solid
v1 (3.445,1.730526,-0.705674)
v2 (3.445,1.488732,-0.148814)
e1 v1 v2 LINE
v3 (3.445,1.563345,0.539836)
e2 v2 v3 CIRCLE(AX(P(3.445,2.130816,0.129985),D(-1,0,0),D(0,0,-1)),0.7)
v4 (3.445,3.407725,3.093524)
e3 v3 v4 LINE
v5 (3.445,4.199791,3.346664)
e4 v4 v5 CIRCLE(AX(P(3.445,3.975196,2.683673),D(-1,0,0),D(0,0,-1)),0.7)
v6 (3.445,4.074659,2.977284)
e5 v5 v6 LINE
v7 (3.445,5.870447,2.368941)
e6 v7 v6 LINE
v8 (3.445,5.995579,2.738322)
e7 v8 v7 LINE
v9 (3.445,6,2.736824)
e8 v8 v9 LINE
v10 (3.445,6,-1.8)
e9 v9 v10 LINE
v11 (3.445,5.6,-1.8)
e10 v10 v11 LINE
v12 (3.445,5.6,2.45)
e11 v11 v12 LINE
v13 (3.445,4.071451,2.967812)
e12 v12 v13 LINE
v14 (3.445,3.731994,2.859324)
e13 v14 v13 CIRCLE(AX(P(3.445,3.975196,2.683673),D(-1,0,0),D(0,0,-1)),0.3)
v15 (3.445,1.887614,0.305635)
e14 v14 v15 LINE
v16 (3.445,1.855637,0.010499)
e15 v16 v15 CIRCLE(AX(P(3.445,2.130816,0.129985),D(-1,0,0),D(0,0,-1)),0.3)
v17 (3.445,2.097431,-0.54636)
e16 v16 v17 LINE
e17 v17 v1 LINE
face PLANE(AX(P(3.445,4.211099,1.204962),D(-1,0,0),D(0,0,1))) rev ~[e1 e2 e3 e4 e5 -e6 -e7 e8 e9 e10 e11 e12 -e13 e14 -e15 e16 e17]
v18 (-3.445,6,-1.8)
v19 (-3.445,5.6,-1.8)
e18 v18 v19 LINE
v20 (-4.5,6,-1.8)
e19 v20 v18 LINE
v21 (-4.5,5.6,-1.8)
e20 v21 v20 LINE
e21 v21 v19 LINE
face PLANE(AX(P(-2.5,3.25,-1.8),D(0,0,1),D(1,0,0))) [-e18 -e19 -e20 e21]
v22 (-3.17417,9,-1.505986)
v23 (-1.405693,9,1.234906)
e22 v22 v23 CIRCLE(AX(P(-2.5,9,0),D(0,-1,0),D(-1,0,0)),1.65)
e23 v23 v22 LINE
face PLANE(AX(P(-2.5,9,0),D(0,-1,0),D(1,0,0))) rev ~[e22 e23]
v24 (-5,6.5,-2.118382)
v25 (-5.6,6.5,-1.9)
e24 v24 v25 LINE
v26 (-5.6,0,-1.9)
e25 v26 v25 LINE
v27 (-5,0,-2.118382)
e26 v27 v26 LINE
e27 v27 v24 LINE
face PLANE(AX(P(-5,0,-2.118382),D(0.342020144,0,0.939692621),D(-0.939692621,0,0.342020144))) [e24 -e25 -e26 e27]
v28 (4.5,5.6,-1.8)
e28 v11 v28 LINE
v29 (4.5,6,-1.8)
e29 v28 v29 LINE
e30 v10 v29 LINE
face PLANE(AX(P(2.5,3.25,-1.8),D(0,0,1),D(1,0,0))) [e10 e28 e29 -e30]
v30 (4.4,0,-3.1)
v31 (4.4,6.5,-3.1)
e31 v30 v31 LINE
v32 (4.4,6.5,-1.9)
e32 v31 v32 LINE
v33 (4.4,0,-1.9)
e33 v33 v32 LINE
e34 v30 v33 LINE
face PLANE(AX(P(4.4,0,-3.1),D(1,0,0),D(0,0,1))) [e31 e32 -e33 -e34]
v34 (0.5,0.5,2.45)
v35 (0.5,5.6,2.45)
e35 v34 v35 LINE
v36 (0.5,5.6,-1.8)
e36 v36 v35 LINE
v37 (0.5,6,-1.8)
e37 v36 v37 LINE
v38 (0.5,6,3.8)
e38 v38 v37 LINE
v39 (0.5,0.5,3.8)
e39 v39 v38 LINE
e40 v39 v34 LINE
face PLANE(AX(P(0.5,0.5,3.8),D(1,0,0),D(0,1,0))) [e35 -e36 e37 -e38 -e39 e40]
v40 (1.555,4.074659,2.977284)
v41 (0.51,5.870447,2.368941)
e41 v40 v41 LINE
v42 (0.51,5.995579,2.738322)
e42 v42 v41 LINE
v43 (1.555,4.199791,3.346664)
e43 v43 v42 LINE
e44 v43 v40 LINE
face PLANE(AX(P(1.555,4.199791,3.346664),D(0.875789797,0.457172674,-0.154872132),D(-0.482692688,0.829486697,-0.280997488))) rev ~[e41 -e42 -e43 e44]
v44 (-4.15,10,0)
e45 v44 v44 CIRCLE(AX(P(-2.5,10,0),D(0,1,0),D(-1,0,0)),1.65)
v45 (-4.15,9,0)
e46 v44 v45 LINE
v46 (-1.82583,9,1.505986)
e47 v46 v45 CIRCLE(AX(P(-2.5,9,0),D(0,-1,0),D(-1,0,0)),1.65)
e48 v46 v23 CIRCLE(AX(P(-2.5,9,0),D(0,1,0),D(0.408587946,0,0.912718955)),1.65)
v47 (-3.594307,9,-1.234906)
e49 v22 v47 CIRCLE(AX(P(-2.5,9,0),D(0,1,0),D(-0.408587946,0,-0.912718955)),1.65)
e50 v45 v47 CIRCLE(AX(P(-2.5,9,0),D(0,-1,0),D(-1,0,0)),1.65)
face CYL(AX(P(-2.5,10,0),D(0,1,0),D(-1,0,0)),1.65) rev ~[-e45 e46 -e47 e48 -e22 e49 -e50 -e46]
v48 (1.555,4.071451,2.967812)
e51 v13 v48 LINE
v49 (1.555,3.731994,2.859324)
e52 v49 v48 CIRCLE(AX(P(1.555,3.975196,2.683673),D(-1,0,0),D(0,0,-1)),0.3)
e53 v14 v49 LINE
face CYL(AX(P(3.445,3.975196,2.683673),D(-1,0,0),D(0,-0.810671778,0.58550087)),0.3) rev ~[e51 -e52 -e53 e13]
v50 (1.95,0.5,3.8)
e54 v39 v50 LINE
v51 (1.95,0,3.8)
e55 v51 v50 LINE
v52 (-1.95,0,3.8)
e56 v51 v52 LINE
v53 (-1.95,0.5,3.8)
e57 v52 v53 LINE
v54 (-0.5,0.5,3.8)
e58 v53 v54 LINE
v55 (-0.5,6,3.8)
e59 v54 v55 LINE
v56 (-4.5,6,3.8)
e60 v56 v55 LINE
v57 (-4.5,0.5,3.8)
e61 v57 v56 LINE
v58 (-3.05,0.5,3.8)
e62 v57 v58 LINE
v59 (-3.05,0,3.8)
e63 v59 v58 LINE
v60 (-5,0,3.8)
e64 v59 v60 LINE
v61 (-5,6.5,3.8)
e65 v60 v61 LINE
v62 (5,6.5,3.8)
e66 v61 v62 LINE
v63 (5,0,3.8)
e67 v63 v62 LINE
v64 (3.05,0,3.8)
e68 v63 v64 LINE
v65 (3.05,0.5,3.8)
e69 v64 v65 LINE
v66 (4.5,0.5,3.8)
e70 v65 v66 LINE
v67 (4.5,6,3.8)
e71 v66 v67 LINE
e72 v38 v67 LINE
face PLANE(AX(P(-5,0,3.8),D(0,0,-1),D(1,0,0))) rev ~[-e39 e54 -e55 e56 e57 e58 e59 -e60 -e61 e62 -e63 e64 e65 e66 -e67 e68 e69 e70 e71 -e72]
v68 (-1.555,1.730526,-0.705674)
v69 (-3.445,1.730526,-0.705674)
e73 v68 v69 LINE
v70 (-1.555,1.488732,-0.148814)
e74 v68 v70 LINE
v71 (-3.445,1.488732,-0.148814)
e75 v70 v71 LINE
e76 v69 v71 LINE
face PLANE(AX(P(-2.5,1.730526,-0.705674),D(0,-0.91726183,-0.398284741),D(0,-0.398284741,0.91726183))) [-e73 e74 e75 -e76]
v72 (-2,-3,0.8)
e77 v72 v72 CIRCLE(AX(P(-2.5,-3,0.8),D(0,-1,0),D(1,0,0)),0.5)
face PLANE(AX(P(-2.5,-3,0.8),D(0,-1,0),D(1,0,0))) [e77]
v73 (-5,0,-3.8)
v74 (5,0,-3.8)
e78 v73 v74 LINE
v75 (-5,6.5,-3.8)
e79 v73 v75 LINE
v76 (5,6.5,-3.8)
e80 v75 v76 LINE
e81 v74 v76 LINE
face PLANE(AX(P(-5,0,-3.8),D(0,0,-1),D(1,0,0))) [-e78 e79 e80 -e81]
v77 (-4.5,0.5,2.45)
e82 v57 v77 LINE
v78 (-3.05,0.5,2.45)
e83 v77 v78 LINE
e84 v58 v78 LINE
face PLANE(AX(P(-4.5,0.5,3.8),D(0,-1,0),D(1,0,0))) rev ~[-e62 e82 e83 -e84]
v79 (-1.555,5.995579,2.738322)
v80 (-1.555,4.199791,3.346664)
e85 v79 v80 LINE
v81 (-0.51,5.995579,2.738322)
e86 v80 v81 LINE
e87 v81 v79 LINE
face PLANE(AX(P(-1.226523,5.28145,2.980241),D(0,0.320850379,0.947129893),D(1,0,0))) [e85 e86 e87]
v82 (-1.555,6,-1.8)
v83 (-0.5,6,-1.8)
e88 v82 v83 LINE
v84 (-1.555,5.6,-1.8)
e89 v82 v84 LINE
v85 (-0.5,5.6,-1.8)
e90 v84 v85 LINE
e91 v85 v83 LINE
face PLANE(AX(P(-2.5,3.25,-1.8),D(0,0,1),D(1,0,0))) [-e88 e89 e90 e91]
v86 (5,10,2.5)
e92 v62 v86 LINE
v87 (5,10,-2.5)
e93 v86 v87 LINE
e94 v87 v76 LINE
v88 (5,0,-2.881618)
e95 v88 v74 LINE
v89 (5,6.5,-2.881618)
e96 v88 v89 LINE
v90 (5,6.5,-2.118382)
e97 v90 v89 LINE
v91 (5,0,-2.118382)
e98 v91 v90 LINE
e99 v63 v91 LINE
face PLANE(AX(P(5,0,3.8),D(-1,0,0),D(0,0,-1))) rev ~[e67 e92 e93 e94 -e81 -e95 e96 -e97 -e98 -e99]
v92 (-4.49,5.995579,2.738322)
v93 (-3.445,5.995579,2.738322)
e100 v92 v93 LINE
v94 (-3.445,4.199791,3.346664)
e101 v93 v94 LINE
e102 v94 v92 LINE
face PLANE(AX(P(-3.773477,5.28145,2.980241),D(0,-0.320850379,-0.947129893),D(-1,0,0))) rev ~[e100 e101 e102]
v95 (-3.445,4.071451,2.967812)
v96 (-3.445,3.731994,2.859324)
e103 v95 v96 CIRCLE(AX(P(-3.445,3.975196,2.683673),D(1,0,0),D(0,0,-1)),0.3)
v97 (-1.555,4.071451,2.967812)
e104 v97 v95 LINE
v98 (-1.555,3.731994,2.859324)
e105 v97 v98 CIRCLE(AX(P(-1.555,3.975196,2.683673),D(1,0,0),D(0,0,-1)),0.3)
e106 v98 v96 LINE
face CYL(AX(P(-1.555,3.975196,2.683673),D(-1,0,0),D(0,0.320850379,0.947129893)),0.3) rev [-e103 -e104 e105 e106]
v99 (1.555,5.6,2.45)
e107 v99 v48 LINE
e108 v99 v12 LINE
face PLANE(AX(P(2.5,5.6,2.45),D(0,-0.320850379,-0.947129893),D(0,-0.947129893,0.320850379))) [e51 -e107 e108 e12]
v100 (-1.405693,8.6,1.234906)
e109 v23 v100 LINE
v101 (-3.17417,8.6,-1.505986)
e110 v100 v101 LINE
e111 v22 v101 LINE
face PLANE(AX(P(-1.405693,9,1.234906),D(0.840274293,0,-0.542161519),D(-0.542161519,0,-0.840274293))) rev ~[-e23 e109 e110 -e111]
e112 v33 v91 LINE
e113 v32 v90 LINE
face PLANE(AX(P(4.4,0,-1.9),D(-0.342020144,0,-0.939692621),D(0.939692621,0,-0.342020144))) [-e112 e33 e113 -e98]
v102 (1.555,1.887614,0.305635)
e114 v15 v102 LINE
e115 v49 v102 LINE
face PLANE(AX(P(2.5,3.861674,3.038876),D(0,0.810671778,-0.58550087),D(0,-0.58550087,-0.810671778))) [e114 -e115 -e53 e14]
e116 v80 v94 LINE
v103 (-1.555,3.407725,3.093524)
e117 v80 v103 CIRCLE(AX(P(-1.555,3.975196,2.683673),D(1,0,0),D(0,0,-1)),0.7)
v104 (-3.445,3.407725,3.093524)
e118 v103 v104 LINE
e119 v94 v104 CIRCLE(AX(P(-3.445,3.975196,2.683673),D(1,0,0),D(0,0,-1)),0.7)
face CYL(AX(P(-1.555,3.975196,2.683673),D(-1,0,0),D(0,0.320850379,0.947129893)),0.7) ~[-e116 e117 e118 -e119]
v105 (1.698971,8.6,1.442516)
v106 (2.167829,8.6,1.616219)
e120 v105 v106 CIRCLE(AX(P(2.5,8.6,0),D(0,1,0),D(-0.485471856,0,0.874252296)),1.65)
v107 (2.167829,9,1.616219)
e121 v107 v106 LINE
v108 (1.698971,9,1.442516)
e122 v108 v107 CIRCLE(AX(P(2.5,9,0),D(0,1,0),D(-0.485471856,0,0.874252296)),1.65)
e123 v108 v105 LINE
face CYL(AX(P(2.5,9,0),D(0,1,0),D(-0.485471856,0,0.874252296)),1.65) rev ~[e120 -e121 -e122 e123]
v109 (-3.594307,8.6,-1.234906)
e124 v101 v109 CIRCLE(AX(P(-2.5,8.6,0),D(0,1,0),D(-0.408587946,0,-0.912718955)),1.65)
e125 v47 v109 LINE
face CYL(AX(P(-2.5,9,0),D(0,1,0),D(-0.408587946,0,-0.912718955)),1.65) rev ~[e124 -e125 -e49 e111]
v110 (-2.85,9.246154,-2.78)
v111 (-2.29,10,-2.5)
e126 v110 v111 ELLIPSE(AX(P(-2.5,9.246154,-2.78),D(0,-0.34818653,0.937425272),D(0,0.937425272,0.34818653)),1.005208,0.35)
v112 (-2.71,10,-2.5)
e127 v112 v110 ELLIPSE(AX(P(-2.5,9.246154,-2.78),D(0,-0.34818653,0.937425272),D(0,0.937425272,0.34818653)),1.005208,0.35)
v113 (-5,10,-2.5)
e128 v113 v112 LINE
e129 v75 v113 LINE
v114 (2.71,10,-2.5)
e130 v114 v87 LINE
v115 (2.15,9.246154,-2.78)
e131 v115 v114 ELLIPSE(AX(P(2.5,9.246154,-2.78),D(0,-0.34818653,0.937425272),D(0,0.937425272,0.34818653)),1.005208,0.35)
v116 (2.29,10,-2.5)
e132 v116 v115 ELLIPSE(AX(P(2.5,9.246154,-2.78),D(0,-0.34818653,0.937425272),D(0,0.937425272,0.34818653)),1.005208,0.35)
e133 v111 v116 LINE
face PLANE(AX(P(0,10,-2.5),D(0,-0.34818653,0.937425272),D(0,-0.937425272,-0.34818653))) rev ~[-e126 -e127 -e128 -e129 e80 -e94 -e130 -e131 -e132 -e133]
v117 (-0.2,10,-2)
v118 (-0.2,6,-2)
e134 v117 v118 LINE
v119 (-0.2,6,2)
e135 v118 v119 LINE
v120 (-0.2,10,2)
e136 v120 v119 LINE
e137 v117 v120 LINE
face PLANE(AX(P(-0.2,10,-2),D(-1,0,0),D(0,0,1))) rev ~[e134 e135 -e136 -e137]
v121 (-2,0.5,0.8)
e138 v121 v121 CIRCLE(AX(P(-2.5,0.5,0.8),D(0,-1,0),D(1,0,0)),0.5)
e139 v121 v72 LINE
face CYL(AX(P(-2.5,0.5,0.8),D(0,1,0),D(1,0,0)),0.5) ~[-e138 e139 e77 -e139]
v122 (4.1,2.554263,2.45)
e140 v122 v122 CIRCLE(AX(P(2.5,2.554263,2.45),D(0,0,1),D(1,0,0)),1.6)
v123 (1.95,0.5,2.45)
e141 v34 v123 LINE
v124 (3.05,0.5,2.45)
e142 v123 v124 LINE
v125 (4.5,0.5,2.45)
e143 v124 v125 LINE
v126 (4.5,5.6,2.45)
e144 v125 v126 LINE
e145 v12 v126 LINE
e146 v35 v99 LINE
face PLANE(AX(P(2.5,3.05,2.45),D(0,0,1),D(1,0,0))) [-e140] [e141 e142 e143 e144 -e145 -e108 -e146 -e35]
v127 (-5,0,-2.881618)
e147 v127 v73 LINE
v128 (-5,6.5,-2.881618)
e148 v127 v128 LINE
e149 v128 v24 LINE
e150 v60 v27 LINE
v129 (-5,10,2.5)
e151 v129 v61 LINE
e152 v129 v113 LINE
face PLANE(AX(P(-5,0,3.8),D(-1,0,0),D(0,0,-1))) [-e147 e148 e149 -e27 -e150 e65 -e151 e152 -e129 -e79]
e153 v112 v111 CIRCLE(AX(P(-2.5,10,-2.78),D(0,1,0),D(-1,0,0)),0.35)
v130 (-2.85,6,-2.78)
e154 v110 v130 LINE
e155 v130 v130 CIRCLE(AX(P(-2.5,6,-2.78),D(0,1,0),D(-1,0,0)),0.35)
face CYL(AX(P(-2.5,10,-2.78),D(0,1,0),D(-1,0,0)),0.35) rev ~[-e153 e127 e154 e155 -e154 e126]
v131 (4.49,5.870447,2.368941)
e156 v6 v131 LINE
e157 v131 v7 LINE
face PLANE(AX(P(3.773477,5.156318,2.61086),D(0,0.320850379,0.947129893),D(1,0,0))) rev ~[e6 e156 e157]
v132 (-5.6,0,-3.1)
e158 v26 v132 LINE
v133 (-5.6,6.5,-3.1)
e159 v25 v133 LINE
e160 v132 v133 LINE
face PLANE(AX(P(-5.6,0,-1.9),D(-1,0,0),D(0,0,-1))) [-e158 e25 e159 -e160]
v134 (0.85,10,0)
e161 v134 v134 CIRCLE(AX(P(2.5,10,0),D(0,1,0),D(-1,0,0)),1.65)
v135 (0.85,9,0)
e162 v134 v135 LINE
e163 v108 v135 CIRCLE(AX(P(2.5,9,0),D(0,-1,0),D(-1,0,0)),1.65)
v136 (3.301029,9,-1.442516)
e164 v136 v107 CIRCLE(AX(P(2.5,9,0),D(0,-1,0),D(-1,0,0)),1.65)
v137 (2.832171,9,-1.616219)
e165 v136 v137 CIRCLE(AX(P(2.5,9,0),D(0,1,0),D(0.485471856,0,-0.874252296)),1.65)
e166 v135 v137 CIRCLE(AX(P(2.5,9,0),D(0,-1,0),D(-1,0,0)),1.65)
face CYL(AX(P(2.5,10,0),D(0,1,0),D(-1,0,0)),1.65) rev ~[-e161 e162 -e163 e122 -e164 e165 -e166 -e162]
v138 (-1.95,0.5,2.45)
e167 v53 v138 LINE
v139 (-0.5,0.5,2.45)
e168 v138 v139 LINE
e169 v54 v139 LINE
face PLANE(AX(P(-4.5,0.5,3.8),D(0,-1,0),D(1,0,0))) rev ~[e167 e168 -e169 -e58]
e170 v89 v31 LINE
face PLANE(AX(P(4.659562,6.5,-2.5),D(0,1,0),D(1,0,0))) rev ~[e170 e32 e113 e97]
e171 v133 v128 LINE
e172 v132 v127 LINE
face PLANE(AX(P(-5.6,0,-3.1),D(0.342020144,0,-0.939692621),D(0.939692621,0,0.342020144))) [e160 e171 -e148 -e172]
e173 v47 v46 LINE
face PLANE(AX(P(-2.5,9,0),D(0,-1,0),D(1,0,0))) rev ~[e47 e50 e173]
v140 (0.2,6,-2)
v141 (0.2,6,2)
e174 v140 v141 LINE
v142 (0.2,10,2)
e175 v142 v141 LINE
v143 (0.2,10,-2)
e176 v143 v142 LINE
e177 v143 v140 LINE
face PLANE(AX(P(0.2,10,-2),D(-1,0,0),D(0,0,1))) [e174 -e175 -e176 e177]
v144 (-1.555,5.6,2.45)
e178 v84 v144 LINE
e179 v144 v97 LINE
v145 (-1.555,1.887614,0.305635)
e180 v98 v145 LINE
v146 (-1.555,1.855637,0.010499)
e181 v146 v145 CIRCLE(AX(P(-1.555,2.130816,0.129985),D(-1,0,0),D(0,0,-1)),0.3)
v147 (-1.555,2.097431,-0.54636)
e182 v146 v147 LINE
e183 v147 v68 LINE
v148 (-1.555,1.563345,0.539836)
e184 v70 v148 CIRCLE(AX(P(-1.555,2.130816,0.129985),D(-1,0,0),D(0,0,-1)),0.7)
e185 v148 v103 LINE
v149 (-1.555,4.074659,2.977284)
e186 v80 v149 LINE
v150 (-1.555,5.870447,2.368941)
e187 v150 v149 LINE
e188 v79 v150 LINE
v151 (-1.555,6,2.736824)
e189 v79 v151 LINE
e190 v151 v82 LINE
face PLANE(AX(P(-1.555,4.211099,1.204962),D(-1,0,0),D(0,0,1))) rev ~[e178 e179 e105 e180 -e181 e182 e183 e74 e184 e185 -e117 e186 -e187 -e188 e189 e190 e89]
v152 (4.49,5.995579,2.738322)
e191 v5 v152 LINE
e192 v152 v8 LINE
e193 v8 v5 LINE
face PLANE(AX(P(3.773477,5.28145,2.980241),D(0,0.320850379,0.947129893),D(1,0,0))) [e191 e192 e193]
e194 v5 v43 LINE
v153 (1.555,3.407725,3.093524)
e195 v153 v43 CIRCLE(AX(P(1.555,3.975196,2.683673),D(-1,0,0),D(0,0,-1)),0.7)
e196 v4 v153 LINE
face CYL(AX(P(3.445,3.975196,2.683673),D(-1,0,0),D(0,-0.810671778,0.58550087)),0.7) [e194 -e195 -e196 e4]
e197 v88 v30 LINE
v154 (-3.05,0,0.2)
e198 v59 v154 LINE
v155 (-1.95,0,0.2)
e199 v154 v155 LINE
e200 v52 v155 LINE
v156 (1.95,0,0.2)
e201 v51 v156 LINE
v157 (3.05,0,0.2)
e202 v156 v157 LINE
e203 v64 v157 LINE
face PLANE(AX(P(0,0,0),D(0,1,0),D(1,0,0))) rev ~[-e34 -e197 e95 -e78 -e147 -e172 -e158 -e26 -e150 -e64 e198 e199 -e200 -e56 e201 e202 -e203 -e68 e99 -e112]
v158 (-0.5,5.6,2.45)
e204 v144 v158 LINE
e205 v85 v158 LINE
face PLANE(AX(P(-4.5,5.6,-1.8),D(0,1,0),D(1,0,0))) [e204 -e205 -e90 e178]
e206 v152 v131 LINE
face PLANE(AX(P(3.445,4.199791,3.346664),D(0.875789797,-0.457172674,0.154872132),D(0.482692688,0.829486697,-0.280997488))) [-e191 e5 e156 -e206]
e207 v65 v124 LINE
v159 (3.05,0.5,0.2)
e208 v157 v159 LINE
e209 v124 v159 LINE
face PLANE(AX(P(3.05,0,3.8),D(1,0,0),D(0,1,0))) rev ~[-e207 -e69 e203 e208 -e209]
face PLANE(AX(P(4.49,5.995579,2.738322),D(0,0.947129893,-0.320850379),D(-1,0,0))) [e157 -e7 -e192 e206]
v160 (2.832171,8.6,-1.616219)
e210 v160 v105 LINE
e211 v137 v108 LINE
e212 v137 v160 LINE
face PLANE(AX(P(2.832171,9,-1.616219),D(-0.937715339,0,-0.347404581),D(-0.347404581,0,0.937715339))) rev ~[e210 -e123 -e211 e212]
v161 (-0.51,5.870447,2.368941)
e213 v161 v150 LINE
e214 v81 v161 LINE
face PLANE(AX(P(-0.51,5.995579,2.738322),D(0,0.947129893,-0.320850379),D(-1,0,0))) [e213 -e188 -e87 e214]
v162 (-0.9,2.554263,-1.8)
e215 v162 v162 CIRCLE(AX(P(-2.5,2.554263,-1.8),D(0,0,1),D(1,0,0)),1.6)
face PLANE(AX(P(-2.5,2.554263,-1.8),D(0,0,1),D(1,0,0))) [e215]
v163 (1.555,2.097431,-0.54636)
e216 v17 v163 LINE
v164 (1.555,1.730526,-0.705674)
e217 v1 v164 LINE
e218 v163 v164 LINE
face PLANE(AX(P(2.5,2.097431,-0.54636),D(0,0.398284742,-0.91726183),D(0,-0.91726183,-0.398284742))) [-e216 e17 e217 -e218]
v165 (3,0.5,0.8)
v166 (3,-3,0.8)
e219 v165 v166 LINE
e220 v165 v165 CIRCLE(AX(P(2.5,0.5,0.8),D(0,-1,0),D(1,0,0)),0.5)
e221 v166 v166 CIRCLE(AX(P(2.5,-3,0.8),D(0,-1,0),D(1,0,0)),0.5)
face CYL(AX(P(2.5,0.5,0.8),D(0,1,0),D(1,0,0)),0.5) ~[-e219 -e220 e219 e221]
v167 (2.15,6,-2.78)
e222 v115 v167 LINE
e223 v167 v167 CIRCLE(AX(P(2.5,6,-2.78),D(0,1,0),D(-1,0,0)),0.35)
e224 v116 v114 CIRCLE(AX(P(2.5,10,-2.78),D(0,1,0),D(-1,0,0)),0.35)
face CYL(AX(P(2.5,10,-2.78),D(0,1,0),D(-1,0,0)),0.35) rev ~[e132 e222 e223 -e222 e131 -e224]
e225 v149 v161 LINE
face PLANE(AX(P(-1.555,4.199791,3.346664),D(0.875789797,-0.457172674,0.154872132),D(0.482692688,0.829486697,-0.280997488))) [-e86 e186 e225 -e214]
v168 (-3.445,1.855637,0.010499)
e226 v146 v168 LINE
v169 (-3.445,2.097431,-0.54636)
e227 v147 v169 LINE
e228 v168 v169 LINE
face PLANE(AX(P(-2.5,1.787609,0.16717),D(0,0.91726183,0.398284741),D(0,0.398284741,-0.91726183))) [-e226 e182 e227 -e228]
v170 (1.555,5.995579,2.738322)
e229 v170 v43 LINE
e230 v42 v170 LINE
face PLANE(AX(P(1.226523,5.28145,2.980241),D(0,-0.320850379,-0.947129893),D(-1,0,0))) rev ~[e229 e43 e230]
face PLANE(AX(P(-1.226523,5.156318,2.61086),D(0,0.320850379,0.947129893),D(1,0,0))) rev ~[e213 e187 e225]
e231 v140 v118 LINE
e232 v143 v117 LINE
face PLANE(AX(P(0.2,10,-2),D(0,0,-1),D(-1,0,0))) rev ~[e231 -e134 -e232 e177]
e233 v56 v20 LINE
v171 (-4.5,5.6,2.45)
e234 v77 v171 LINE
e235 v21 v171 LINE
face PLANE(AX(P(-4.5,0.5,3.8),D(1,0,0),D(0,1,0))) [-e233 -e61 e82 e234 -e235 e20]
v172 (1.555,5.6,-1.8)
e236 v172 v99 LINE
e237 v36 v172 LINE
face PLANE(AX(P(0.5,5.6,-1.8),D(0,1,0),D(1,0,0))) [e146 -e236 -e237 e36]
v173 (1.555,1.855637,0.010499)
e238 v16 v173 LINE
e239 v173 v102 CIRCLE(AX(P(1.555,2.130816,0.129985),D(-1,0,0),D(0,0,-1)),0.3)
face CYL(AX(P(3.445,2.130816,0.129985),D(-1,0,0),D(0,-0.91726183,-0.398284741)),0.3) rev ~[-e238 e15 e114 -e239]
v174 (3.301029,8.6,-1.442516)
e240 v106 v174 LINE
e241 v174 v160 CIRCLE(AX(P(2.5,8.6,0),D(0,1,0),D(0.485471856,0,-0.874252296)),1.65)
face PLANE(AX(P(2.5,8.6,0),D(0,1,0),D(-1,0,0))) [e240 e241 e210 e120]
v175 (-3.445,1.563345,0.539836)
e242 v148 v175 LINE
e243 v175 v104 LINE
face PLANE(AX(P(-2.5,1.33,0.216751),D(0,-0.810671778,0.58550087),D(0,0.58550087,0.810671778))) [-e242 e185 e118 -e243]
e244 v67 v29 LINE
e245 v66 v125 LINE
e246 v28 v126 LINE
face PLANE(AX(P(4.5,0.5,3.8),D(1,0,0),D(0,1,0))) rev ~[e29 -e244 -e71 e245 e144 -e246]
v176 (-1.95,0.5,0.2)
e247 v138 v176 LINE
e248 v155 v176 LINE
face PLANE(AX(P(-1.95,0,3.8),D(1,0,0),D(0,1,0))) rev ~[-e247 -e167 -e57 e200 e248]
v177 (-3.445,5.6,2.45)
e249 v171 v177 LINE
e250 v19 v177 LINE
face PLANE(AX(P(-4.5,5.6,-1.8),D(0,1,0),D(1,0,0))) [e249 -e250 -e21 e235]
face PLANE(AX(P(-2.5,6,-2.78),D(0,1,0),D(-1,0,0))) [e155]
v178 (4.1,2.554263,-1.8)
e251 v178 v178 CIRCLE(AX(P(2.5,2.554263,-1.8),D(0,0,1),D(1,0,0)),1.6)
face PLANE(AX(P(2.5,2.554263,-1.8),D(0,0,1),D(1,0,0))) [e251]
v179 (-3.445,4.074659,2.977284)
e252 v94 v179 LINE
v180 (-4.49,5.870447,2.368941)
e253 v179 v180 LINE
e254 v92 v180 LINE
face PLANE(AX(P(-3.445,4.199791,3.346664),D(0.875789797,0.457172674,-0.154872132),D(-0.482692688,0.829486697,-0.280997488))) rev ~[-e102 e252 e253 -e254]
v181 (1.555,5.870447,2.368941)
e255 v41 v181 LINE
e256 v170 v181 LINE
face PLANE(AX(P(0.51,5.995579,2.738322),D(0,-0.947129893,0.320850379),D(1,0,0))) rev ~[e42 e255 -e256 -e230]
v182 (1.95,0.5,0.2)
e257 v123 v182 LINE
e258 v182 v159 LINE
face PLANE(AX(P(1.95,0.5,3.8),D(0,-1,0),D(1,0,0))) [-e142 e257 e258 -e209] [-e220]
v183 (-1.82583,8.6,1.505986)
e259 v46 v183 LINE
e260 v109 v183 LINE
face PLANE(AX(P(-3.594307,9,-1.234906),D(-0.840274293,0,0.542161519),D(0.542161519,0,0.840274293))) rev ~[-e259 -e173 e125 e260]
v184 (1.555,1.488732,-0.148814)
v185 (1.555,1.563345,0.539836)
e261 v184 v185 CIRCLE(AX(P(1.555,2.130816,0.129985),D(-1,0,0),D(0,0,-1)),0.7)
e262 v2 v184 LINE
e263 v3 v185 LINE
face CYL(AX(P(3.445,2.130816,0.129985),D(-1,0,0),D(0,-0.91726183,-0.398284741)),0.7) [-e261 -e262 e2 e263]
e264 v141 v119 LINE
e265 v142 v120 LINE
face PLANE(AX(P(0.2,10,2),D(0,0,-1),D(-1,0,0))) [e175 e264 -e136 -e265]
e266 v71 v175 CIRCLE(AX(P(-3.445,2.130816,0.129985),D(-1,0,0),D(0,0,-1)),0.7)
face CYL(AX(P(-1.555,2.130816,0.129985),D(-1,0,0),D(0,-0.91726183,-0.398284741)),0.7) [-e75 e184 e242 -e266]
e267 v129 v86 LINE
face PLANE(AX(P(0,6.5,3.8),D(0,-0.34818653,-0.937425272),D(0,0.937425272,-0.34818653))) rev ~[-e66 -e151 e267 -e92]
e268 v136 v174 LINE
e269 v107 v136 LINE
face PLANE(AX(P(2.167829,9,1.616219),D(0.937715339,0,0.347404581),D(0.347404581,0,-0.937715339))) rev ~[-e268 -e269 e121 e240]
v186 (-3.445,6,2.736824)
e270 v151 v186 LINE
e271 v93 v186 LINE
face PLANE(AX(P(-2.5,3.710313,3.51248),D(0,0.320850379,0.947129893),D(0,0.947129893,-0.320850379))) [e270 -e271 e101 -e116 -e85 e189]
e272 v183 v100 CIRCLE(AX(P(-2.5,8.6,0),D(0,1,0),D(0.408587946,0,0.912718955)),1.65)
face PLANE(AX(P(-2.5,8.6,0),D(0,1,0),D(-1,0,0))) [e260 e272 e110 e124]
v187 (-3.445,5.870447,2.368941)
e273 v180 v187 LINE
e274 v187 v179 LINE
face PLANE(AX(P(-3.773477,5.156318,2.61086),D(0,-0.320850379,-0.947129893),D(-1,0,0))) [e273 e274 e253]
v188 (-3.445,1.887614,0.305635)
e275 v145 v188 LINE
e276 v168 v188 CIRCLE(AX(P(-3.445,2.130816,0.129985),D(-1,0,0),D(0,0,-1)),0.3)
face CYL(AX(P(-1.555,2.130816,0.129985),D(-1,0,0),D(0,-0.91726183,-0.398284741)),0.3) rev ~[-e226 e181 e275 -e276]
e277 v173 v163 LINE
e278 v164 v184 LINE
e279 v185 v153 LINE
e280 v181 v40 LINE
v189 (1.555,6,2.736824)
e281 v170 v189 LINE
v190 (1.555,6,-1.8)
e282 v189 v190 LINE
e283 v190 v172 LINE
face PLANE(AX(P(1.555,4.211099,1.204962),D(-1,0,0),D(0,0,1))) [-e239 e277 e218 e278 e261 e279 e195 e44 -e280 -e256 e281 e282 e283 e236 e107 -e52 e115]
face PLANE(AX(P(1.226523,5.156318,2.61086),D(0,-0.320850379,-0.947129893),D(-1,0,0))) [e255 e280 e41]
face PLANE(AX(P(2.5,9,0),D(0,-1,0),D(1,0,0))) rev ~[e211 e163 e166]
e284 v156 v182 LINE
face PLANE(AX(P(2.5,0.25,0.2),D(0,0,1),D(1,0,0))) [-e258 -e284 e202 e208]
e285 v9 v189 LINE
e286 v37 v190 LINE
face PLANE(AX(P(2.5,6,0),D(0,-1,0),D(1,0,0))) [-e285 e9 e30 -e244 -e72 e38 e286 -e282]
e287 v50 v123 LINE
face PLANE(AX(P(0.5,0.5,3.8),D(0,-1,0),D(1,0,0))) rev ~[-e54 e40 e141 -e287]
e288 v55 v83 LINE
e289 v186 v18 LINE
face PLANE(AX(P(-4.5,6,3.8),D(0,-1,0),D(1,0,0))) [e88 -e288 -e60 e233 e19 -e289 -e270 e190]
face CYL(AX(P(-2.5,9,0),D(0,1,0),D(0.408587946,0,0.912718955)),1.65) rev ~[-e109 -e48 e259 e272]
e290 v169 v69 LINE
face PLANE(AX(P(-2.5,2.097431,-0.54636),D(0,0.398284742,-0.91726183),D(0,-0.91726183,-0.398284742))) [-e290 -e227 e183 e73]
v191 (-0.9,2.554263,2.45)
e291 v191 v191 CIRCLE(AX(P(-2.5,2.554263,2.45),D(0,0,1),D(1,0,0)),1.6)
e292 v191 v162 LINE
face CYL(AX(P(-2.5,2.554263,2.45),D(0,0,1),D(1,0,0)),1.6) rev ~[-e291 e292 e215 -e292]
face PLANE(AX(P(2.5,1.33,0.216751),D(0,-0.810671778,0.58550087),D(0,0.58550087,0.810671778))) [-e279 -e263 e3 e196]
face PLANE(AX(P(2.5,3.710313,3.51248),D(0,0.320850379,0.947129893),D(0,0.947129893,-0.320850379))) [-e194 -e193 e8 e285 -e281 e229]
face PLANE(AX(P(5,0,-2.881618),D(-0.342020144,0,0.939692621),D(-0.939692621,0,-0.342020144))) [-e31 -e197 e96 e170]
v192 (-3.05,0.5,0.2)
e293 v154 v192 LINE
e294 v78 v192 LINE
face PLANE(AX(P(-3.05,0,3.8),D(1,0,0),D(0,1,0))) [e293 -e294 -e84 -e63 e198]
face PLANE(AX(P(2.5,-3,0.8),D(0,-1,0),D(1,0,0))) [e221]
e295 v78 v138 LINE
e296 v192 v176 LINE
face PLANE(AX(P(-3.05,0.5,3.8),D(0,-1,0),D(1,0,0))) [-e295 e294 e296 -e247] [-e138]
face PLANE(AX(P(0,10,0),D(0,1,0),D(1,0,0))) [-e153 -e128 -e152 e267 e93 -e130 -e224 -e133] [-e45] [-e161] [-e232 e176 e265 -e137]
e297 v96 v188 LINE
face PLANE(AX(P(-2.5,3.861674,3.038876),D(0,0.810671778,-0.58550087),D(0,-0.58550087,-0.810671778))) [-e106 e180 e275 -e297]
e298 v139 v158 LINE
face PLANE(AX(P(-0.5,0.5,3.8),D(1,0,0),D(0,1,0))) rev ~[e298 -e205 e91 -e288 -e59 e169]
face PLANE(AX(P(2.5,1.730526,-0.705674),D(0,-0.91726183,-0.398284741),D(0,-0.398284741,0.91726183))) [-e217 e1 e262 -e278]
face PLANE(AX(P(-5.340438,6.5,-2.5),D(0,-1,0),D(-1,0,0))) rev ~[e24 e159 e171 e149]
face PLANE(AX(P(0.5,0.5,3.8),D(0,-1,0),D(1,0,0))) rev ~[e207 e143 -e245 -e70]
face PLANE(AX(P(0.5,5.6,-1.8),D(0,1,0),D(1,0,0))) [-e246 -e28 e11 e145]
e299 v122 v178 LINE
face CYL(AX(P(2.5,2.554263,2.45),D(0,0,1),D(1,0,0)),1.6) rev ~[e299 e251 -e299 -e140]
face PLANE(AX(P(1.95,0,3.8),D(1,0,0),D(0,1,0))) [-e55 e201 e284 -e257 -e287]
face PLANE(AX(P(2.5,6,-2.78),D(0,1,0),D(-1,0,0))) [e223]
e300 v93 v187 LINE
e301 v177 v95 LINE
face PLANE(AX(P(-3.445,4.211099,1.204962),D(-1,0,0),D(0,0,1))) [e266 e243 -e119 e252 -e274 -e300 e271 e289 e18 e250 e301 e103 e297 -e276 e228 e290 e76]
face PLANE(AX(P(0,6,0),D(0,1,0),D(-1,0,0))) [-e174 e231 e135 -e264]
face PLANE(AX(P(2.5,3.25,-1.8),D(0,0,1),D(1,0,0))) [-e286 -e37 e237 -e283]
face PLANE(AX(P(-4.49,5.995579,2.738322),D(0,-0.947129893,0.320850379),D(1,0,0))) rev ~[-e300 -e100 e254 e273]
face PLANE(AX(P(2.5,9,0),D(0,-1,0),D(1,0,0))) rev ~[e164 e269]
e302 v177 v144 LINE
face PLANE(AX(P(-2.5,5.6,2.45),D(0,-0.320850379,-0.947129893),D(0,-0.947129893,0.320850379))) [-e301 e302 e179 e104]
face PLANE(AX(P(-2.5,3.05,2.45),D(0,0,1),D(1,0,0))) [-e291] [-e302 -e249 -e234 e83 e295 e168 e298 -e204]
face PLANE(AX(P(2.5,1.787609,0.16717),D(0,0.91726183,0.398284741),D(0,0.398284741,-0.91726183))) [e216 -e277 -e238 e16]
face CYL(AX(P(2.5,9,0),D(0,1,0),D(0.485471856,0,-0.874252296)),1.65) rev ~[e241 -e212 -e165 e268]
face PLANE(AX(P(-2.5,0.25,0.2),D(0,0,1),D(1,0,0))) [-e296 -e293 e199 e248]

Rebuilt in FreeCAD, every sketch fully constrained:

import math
import FreeCAD as App
import Part
import Sketcher
Q = App.Units.Quantity


def edges_at(feature, points):
    """Names of the edges that pass closest to the given points."""
    edges = feature.Shape.Edges
    near = lambda p: min(range(len(edges)), key=lambda i: edges[i].distToShape(Part.Vertex(*p))[0])
    return sorted({f"Edge{near(p) + 1}" for p in points})


def add_polygon(sketch, points):
    """Adds a closed chain of lines whose ends are joined by coincident constraints."""
    first, n = sketch.GeometryCount, len(points)
    for a, b in zip(points, points[1:] + points[:1]):
        sketch.addGeometry(Part.LineSegment(App.Vector(*a, 0), App.Vector(*b, 0)), False)
    for i in range(n):
        sketch.addConstraint(Sketcher.Constraint("Coincident", first + i, 2, first + (i + 1) % n, 1))

doc = App.newDocument("Part")
body = doc.addObject("PartDesign::Body", "Body")

sketch1 = body.newObject("Sketcher::SketchObject", "Sketch")
sketch1.AttachmentSupport = (doc.getObject("XZ_Plane"), [""])
sketch1.MapMode = "FlatFace"
add_polygon(sketch1, [(-5, -4), (-5, 4), (5, 4), (5, -4)])
sketch1.addConstraint(Sketcher.Constraint("Vertical", 0))
sketch1.addConstraint(Sketcher.Constraint("Horizontal", 1))
sketch1.addConstraint(Sketcher.Constraint("Vertical", 2))
sketch1.addConstraint(Sketcher.Constraint("Horizontal", 3))
sketch1.addConstraint(Sketcher.Constraint("Symmetric", 0, 2, 2, 2, -1, 1))
sketch1.addConstraint(Sketcher.Constraint("DistanceX", 1, 1, 1, 2, 10.0))
sketch1.addConstraint(Sketcher.Constraint("DistanceY", 0, 1, 0, 2, 7.6))
pad1 = body.newObject("PartDesign::Pad", "Pad")
pad1.Profile = sketch1
pad1.Length = 10
pad1.Reversed = True

sketch2 = body.newObject("Sketcher::SketchObject", "Sketch001")
sketch2.AttachmentSupport = (doc.getObject("YZ_Plane"), [""])
sketch2.MapMode = "FlatFace"
add_polygon(sketch2, [(12.6, 6.4), (-2.6, 6.4), (-2.6, -6.4), (12.6, -6.4)])
add_polygon(sketch2, [(10, 2.5), (10, -2.5), (6.5, -3.8), (0, -3.8), (0, 3.8), (6.5, 3.8)])
sketch2.addConstraint(Sketcher.Constraint("Horizontal", 0))
sketch2.addConstraint(Sketcher.Constraint("Vertical", 1))
sketch2.addConstraint(Sketcher.Constraint("Horizontal", 2))
sketch2.addConstraint(Sketcher.Constraint("Vertical", 3))
sketch2.addConstraint(Sketcher.Constraint("Vertical", 4))
sketch2.addConstraint(Sketcher.Constraint("Horizontal", 6))
sketch2.addConstraint(Sketcher.Constraint("Vertical", 7))
sketch2.addConstraint(Sketcher.Constraint("Horizontal", 8))
sketch2.addConstraint(Sketcher.Constraint("Symmetric", 6, 2, 7, 2, -1, 1))
sketch2.addConstraint(Sketcher.Constraint("Vertical", 5, 2, 8, 2))
sketch2.addConstraint(Sketcher.Constraint("Equal", 5, 9))
sketch2.addConstraint(Sketcher.Constraint("DistanceY", 4, 2, 4, 1, 5.0))
sketch2.addConstraint(Sketcher.Constraint("DistanceX", 6, 2, 6, 1, 6.5))
sketch2.addConstraint(Sketcher.Constraint("DistanceY", 7, 1, 7, 2, 7.6))
sketch2.addConstraint(Sketcher.Constraint("DistanceX", -1, 1, 4, 2, 10.0))
sketch2.addConstraint(Sketcher.Constraint("DistanceX", 0, 2, 0, 1, 15.21))
sketch2.addConstraint(Sketcher.Constraint("DistanceY", 1, 2, 1, 1, 12.81))
sketch2.addConstraint(Sketcher.Constraint("DistanceX", 0, 2, -1, 1, 2.605))
sketch2.addConstraint(Sketcher.Constraint("DistanceY", -1, 1, 0, 2, 6.405))
pocket1 = body.newObject("PartDesign::Pocket", "Pocket")
pocket1.Profile = sketch2
pocket1.Type = "ThroughAll"
pocket1.Midplane = True

sketch3 = body.newObject("Sketcher::SketchObject", "Sketch002")
sketch3.AttachmentSupport = (doc.getObject("XZ_Plane"), [""])
sketch3.MapMode = "FlatFace"
sketch3.AttachmentOffset = App.Placement(App.Vector(0, 0, -10), App.Rotation())
sketch3.addGeometry(Part.Circle(App.Vector(-2.5, 0, 0), App.Vector(0, 0, 1), 1.65), False)
sketch3.addGeometry(Part.Circle(App.Vector(2.5, 0, 0), App.Vector(0, 0, 1), 1.65), False)
sketch3.addGeometry(Part.Circle(App.Vector(-2.5, -2.78, 0), App.Vector(0, 0, 1), 0.35), False)
sketch3.addGeometry(Part.Circle(App.Vector(2.5, -2.78, 0), App.Vector(0, 0, 1), 0.35), False)
add_polygon(sketch3, [(0.2, 2), (0.2, -2), (-0.2, -2), (-0.2, 2)])
sketch3.addConstraint(Sketcher.Constraint("Vertical", 4))
sketch3.addConstraint(Sketcher.Constraint("Horizontal", 5))
sketch3.addConstraint(Sketcher.Constraint("Vertical", 6))
sketch3.addConstraint(Sketcher.Constraint("Horizontal", 7))
sketch3.addConstraint(Sketcher.Constraint("Equal", 0, 1))
sketch3.addConstraint(Sketcher.Constraint("Equal", 2, 3))
sketch3.addConstraint(Sketcher.Constraint("Symmetric", 0, 3, 1, 3, -1, 1))
sketch3.addConstraint(Sketcher.Constraint("Symmetric", 4, 2, 6, 2, -1, 1))
sketch3.addConstraint(Sketcher.Constraint("Symmetric", 2, 3, 3, 3, -2))
sketch3.addConstraint(Sketcher.Constraint("PointOnObject", 0, 3, -1))
sketch3.addConstraint(Sketcher.Constraint("Vertical", 0, 3, 2, 3))
sketch3.addConstraint(Sketcher.Constraint("Diameter", 0, 3.3))
sketch3.addConstraint(Sketcher.Constraint("Diameter", 2, 0.7))
sketch3.addConstraint(Sketcher.Constraint("DistanceY", 4, 2, 4, 1, 4.0))
sketch3.addConstraint(Sketcher.Constraint("DistanceX", 5, 2, 5, 1, 0.4))
sketch3.addConstraint(Sketcher.Constraint("DistanceX", 0, 3, 1, 3, 5.0))
sketch3.addConstraint(Sketcher.Constraint("DistanceY", 2, 3, -1, 1, 2.78))
pocket2 = body.newObject("PartDesign::Pocket", "Pocket001")
pocket2.Profile = sketch3
pocket2.Length = 4
pocket2.Reversed = True

sketch4 = body.newObject("Sketcher::SketchObject", "Sketch003")
sketch4.AttachmentSupport = (doc.getObject("XY_Plane"), [""])
sketch4.MapMode = "FlatFace"
sketch4.AttachmentOffset = App.Placement(App.Vector(0, 0, 3.8), App.Rotation())
add_polygon(sketch4, [(-4.5, 6), (-4.5, 0.5), (-0.5, 0.5), (-0.5, 6)])
add_polygon(sketch4, [(0.5, 6), (0.5, 0.5), (4.5, 0.5), (4.5, 6)])
sketch4.addConstraint(Sketcher.Constraint("Vertical", 0))
sketch4.addConstraint(Sketcher.Constraint("Horizontal", 1))
sketch4.addConstraint(Sketcher.Constraint("Vertical", 2))
sketch4.addConstraint(Sketcher.Constraint("Horizontal", 3))
sketch4.addConstraint(Sketcher.Constraint("Vertical", 4))
sketch4.addConstraint(Sketcher.Constraint("Horizontal", 5))
sketch4.addConstraint(Sketcher.Constraint("Vertical", 6))
sketch4.addConstraint(Sketcher.Constraint("Horizontal", 7))
sketch4.addConstraint(Sketcher.Constraint("Symmetric", 1, 2, 4, 2, -2))
sketch4.addConstraint(Sketcher.Constraint("Symmetric", 3, 2, 6, 2, -2))
sketch4.addConstraint(Sketcher.Constraint("DistanceX", 1, 1, 1, 2, 4.0))
sketch4.addConstraint(Sketcher.Constraint("DistanceY", 0, 2, 0, 1, 5.5))
sketch4.addConstraint(Sketcher.Constraint("DistanceY", -1, 1, 2, 2, 6.0))
sketch4.addConstraint(Sketcher.Constraint("DistanceX", 1, 2, 4, 2, 1.0))
pocket3 = body.newObject("PartDesign::Pocket", "Pocket002")
pocket3.Profile = sketch4
pocket3.Length = 5.6

sketch5 = body.newObject("Sketcher::SketchObject", "Sketch004")
sketch5.AttachmentSupport = (doc.getObject("XY_Plane"), [""])
sketch5.MapMode = "FlatFace"
sketch5.AttachmentOffset = App.Placement(App.Vector(0, 0, -1.8), App.Rotation())
add_polygon(sketch5, [(-4.5, 5.6), (-4.5, 0.5), (-0.5, 0.5), (-0.5, 5.6)])
add_polygon(sketch5, [(0.5, 5.6), (0.5, 0.5), (4.5, 0.5), (4.5, 5.6)])
sketch5.addConstraint(Sketcher.Constraint("Vertical", 0))
sketch5.addConstraint(Sketcher.Constraint("Horizontal", 1))
sketch5.addConstraint(Sketcher.Constraint("Vertical", 2))
sketch5.addConstraint(Sketcher.Constraint("Horizontal", 3))
sketch5.addConstraint(Sketcher.Constraint("Vertical", 4))
sketch5.addConstraint(Sketcher.Constraint("Horizontal", 5))
sketch5.addConstraint(Sketcher.Constraint("Vertical", 6))
sketch5.addConstraint(Sketcher.Constraint("Horizontal", 7))
sketch5.addConstraint(Sketcher.Constraint("Symmetric", 1, 2, 4, 2, -2))
sketch5.addConstraint(Sketcher.Constraint("Symmetric", 3, 2, 6, 2, -2))
sketch5.addConstraint(Sketcher.Constraint("DistanceX", 1, 1, 1, 2, 4.0))
sketch5.addConstraint(Sketcher.Constraint("DistanceY", 0, 2, 0, 1, 5.1))
sketch5.addConstraint(Sketcher.Constraint("DistanceX", 1, 2, 4, 2, 1.0))
sketch5.addConstraint(Sketcher.Constraint("DistanceY", -1, 1, 0, 2, 0.5))
pad2 = body.newObject("PartDesign::Pad", "Pad001")
pad2.Profile = sketch5
pad2.Length = 4.25

sketch6 = body.newObject("Sketcher::SketchObject", "Sketch005")
sketch6.AttachmentSupport = (doc.getObject("XY_Plane"), [""])
sketch6.MapMode = "FlatFace"
sketch6.AttachmentOffset = App.Placement(App.Vector(0, 0, 2.45), App.Rotation())
sketch6.addGeometry(Part.Circle(App.Vector(-2.5, 2.6, 0), App.Vector(0, 0, 1), 1.6), False)
sketch6.addGeometry(Part.Circle(App.Vector(2.5, 2.6, 0), App.Vector(0, 0, 1), 1.6), False)
sketch6.addConstraint(Sketcher.Constraint("Equal", 0, 1))
sketch6.addConstraint(Sketcher.Constraint("Symmetric", 0, 3, 1, 3, -2))
sketch6.addConstraint(Sketcher.Constraint("Diameter", 0, 3.2))
sketch6.addConstraint(Sketcher.Constraint("DistanceX", 0, 3, 1, 3, 5.0))
sketch6.addConstraint(Sketcher.Constraint("DistanceY", -1, 1, 0, 3, 2.554263))
pocket4 = body.newObject("PartDesign::Pocket", "Pocket003")
pocket4.Profile = sketch6
pocket4.Length = 4.25

sketch7 = body.newObject("Sketcher::SketchObject", "Sketch006")
sketch7.AttachmentSupport = (doc.getObject("XZ_Plane"), [""])
sketch7.MapMode = "FlatFace"
add_polygon(sketch7, [(-5, -2.9), (-5.6, -3.1), (-5.6, -1.9), (-5, -2.1)])
sketch7.addConstraint(Sketcher.Constraint("Vertical", 1))
sketch7.addConstraint(Sketcher.Constraint("Vertical", 3))
sketch7.addConstraint(Sketcher.Constraint("Equal", 0, 2))
sketch7.addConstraint(Sketcher.Constraint("Angle", 0, Q("-160 deg")))
sketch7.addConstraint(Sketcher.Constraint("DistanceY", 1, 1, 1, 2, 1.2))
sketch7.addConstraint(Sketcher.Constraint("DistanceX", 2, 2, -1, 1, 5.0))
sketch7.addConstraint(Sketcher.Constraint("DistanceX", 0, 2, -1, 1, 5.6))
sketch7.addConstraint(Sketcher.Constraint("DistanceY", 0, 2, -1, 1, 3.1))
pad3 = body.newObject("PartDesign::Pad", "Pad002")
pad3.Profile = sketch7
pad3.Length = 6.5
pad3.Reversed = True

sketch8 = body.newObject("Sketcher::SketchObject", "Sketch007")
sketch8.AttachmentSupport = (doc.getObject("XZ_Plane"), [""])
sketch8.MapMode = "FlatFace"
add_polygon(sketch8, [(5, -2.9), (4.4, -3.1), (4.4, -1.9), (5, -2.1)])
sketch8.addConstraint(Sketcher.Constraint("Vertical", 1))
sketch8.addConstraint(Sketcher.Constraint("Vertical", 3))
sketch8.addConstraint(Sketcher.Constraint("Equal", 0, 2))
sketch8.addConstraint(Sketcher.Constraint("Angle", 0, Q("-160 deg")))
sketch8.addConstraint(Sketcher.Constraint("DistanceY", 1, 1, 1, 2, 1.2))
sketch8.addConstraint(Sketcher.Constraint("DistanceX", -1, 1, 2, 2, 5.0))
sketch8.addConstraint(Sketcher.Constraint("DistanceX", -1, 1, 0, 2, 4.4))
sketch8.addConstraint(Sketcher.Constraint("DistanceY", 0, 2, -1, 1, 3.1))
pocket5 = body.newObject("PartDesign::Pocket", "Pocket004")
pocket5.Profile = sketch8
pocket5.Length = 6.5

sketch9 = body.newObject("Sketcher::SketchObject", "Sketch008")
sketch9.AttachmentSupport = (doc.getObject("XY_Plane"), [""])
sketch9.MapMode = "FlatFace"
sketch9.AttachmentOffset = App.Placement(App.Vector(0, 0, 3.8), App.Rotation())
add_polygon(sketch9, [(-3, 0.5), (-3, 0), (-1.9, 0), (-1.9, 0.5)])
add_polygon(sketch9, [(1.9, 0.5), (1.9, 0), (3, 0), (3, 0.5)])
sketch9.addConstraint(Sketcher.Constraint("Vertical", 0))
sketch9.addConstraint(Sketcher.Constraint("Horizontal", 1))
sketch9.addConstraint(Sketcher.Constraint("Vertical", 2))
sketch9.addConstraint(Sketcher.Constraint("Horizontal", 3))
sketch9.addConstraint(Sketcher.Constraint("Vertical", 4))
sketch9.addConstraint(Sketcher.Constraint("Horizontal", 5))
sketch9.addConstraint(Sketcher.Constraint("Vertical", 6))
sketch9.addConstraint(Sketcher.Constraint("Horizontal", 7))
sketch9.addConstraint(Sketcher.Constraint("Symmetric", 1, 2, 4, 2, -1, 1))
sketch9.addConstraint(Sketcher.Constraint("Symmetric", 0, 2, 5, 2, -2))
sketch9.addConstraint(Sketcher.Constraint("Horizontal", 3, 2, 6, 2))
sketch9.addConstraint(Sketcher.Constraint("DistanceX", 1, 1, 1, 2, 1.1))
sketch9.addConstraint(Sketcher.Constraint("DistanceY", 0, 2, 0, 1, 0.5))
sketch9.addConstraint(Sketcher.Constraint("DistanceX", 0, 2, 4, 2, 5.0))
pocket6 = body.newObject("PartDesign::Pocket", "Pocket005")
pocket6.Profile = sketch9
pocket6.Length = 3.6

sketch10 = body.newObject("Sketcher::SketchObject", "Sketch009")
sketch10.AttachmentSupport = (doc.getObject("XZ_Plane"), [""])
sketch10.MapMode = "FlatFace"
sketch10.AttachmentOffset = App.Placement(App.Vector(0, 0, -0.5), App.Rotation())
sketch10.addGeometry(Part.Circle(App.Vector(-2.5, 0.8, 0), App.Vector(0, 0, 1), 0.5), False)
sketch10.addGeometry(Part.Circle(App.Vector(2.5, 0.8, 0), App.Vector(0, 0, 1), 0.5), False)
sketch10.addConstraint(Sketcher.Constraint("Equal", 0, 1))
sketch10.addConstraint(Sketcher.Constraint("Symmetric", 0, 3, 1, 3, -2))
sketch10.addConstraint(Sketcher.Constraint("Diameter", 0, 1.0))
sketch10.addConstraint(Sketcher.Constraint("DistanceX", 0, 3, 1, 3, 5.0))
sketch10.addConstraint(Sketcher.Constraint("DistanceY", -1, 1, 0, 3, 0.8))
pad4 = body.newObject("PartDesign::Pad", "Pad003")
pad4.Profile = sketch10
pad4.Length = 3.5

sketch11 = body.newObject("Sketcher::SketchObject", "Sketch010")
sketch11.AttachmentSupport = (doc.getObject("XZ_Plane"), [""])
sketch11.MapMode = "FlatFace"
sketch11.AttachmentOffset = App.Placement(App.Vector(0, 0, -6), App.Rotation())
sketch11.addGeometry(Part.Circle(App.Vector(2.5, 0, 0), App.Vector(0, 0, 1), 1.6), False)
sketch11.addGeometry(Part.Circle(App.Vector(-2.5, 0, 0), App.Vector(0, 0, 1), 1.6), False)
sketch11.addConstraint(Sketcher.Constraint("Equal", 0, 1))
sketch11.addConstraint(Sketcher.Constraint("Symmetric", 0, 3, 1, 3, -1, 1))
sketch11.addConstraint(Sketcher.Constraint("PointOnObject", 0, 3, -1))
sketch11.addConstraint(Sketcher.Constraint("Diameter", 0, 3.3))
sketch11.addConstraint(Sketcher.Constraint("DistanceX", 1, 3, 0, 3, 5.0))
pad5 = body.newObject("PartDesign::Pad", "Pad004")
pad5.Profile = sketch11
pad5.Length = 3
pad5.Reversed = True

sketch12 = body.newObject("Sketcher::SketchObject", "Sketch011")
sketch12.AttachmentSupport = (doc.getObject("XZ_Plane"), [""])
sketch12.MapMode = "FlatFace"
sketch12.AttachmentOffset = App.Placement(App.Vector(0, 0, -9), App.Rotation())
sketch12.addGeometry(Part.LineSegment(App.Vector(-3.59, -1.23, 0), App.Vector(-1.83, 1.51, 0)), False)
sketch12.addGeometry(Part.ArcOfCircle(Part.Circle(App.Vector(-2.5, 0, 0), App.Vector(0, 0, 1), 1.65), math.radians(48.45), math.radians(65.88)), False)
sketch12.addGeometry(Part.LineSegment(App.Vector(-1.41, 1.23, 0), App.Vector(-3.17, -1.51, 0)), False)
sketch12.addGeometry(Part.ArcOfCircle(Part.Circle(App.Vector(-2.5, 0, 0), App.Vector(0, 0, 1), 1.65), math.radians(-131.55), math.radians(-114.12)), False)
sketch12.addGeometry(Part.LineSegment(App.Vector(2.83, -1.62, 0), App.Vector(1.7, 1.44, 0)), False)
sketch12.addGeometry(Part.ArcOfCircle(Part.Circle(App.Vector(2.5, 0, 0), App.Vector(0, 0, 1), 1.65), math.radians(101.61), math.radians(119.04)), False)
sketch12.addGeometry(Part.LineSegment(App.Vector(2.17, 1.62, 0), App.Vector(3.3, -1.44, 0)), False)
sketch12.addGeometry(Part.ArcOfCircle(Part.Circle(App.Vector(2.5, 0, 0), App.Vector(0, 0, 1), 1.65), math.radians(-78.39), math.radians(-60.96)), False)
sketch12.addConstraint(Sketcher.Constraint("Coincident", 0, 2, 1, 2))
sketch12.addConstraint(Sketcher.Constraint("Coincident", 1, 1, 2, 1))
sketch12.addConstraint(Sketcher.Constraint("Coincident", 2, 2, 3, 2))
sketch12.addConstraint(Sketcher.Constraint("Coincident", 3, 1, 0, 1))
sketch12.addConstraint(Sketcher.Constraint("Coincident", 4, 2, 5, 2))
sketch12.addConstraint(Sketcher.Constraint("Coincident", 5, 1, 6, 1))
sketch12.addConstraint(Sketcher.Constraint("Coincident", 6, 2, 7, 2))
sketch12.addConstraint(Sketcher.Constraint("Coincident", 7, 1, 4, 1))
sketch12.addConstraint(Sketcher.Constraint("Coincident", 3, 3, 1, 3))
sketch12.addConstraint(Sketcher.Constraint("Coincident", 7, 3, 5, 3))
sketch12.addConstraint(Sketcher.Constraint("Equal", 1, 3))
sketch12.addConstraint(Sketcher.Constraint("Equal", 3, 5))
sketch12.addConstraint(Sketcher.Constraint("Equal", 5, 7))
sketch12.addConstraint(Sketcher.Constraint("Symmetric", 1, 3, 5, 3, -1, 1))
sketch12.addConstraint(Sketcher.Constraint("PointOnObject", 1, 3, -1))
sketch12.addConstraint(Sketcher.Constraint("Parallel", 0, 2))
sketch12.addConstraint(Sketcher.Constraint("Parallel", 4, 6))
sketch12.addConstraint(Sketcher.Constraint("Equal", 0, 2))
sketch12.addConstraint(Sketcher.Constraint("Equal", 2, 4))
sketch12.addConstraint(Sketcher.Constraint("Equal", 4, 6))
sketch12.addConstraint(Sketcher.Constraint("Radius", 1, 1.65))
sketch12.addConstraint(Sketcher.Constraint("DistanceX", 3, 3, 5, 3, 5.0))
sketch12.addConstraint(Sketcher.Constraint("Distance", 0, 3.261901))
sketch12.addConstraint(Sketcher.Constraint("DistanceX", 0, 2, 4, 2, 3.524801))
sketch12.addConstraint(Sketcher.Constraint("DistanceX", 5, 1, 6, 2, 1.133199))
pocket7 = body.newObject("PartDesign::Pocket", "Pocket006")
pocket7.Profile = sketch12
pocket7.Length = 0.4
pocket7.Reversed = True

sketch13 = body.newObject("Sketcher::SketchObject", "Sketch012")
sketch13.AttachmentSupport = (doc.getObject("YZ_Plane"), [""])
sketch13.MapMode = "FlatFace"
sketch13.AttachmentOffset = App.Placement(App.Vector(0, 0, -2.5), App.Rotation())
add_polygon(sketch13, [(5.6, 2.45), (3.861674, 3.038876), (1.787609, 0.16717), (2.097431, -0.54636), (1.730526, -0.705674), (1.33, 0.216751), (3.710313, 3.51248), (6, 2.736824), (6, -1.8), (5.6, -1.8)])
sketch13.addConstraint(Sketcher.Constraint("Vertical", 7))
sketch13.addConstraint(Sketcher.Constraint("Horizontal", 8))
sketch13.addConstraint(Sketcher.Constraint("Vertical", 9))
sketch13.addConstraint(Sketcher.Constraint("DistanceX", 8, 2, 8, 1, 0.4))
sketch13.addConstraint(Sketcher.Constraint("DistanceX", -1, 1, 6, 2, 6.0))
sketch13.addConstraint(Sketcher.Constraint("Distance", 3, 0.4))
sketch13.addConstraint(Sketcher.Constraint("DistanceY", 9, 1, 9, 2, 4.25))
sketch13.addConstraint(Sketcher.Constraint("DistanceY", 7, 2, -1, 1, 1.8))
sketch13.addConstraint(Sketcher.Constraint("DistanceX", -1, 1, 4, 2, 1.33))
sketch13.addConstraint(Sketcher.Constraint("Distance", 6, 2.417501))
sketch13.addConstraint(Sketcher.Constraint("Distance", 0, 1.835361))
sketch13.addConstraint(Sketcher.Constraint("Distance", 1, 3.542378))
sketch13.addConstraint(Sketcher.Constraint("Distance", 2, 0.777891))
sketch13.addConstraint(Sketcher.Constraint("Distance", 4, 1.005628))
sketch13.addConstraint(Sketcher.Constraint("Distance", 5, 4.06543))
sketch13.addConstraint(Sketcher.Constraint("DistanceY", 7, 2, 7, 1, 4.536824))
sketch13.addConstraint(Sketcher.Constraint("DistanceX", -1, 1, 1, 2, 1.787609))
sketch13.addConstraint(Sketcher.Constraint("DistanceY", -1, 1, 1, 2, 0.16717))
sketch13.addConstraint(Sketcher.Constraint("DistanceX", -1, 1, 2, 2, 2.097431))
sketch13.addConstraint(Sketcher.Constraint("DistanceY", -1, 1, 4, 2, 0.216751))
pad6 = body.newObject("PartDesign::Pad", "Pad005")
pad6.Profile = sketch13
pad6.Length = 1.89
pad6.Midplane = True

sketch14 = body.newObject("Sketcher::SketchObject", "Sketch013")
sketch14.Placement = App.Placement(App.Vector(0, 1.449355, 4.278404), App.Rotation(App.Vector(1, 0, 0), App.Vector(0, 0.947129893, -0.320850379), App.Vector(0, 0.320850379, 0.947129893), "ZXY"))
add_polygon(sketch14, [(-1.6, 4.8), (-1.6, 2.9), (-0.5, 4.8)])
add_polygon(sketch14, [(-3.4, 2.9), (-3.4, 4.8), (-4.5, 4.8)])
sketch14.addConstraint(Sketcher.Constraint("Vertical", 0))
sketch14.addConstraint(Sketcher.Constraint("Horizontal", 2))
sketch14.addConstraint(Sketcher.Constraint("Vertical", 3))
sketch14.addConstraint(Sketcher.Constraint("Horizontal", 4))
sketch14.addConstraint(Sketcher.Constraint("Horizontal", 2, 2, 3, 2))
sketch14.addConstraint(Sketcher.Constraint("Horizontal", 0, 2, 5, 2))
sketch14.addConstraint(Sketcher.Constraint("Equal", 2, 4))
sketch14.addConstraint(Sketcher.Constraint("DistanceY", -1, 1, 1, 2, 4.8))
sketch14.addConstraint(Sketcher.Constraint("DistanceX", 2, 2, 2, 1, 1.045))
sketch14.addConstraint(Sketcher.Constraint("DistanceX", 1, 2, -1, 1, 0.51))
sketch14.addConstraint(Sketcher.Constraint("DistanceX", 4, 2, -1, 1, 4.49))
sketch14.addConstraint(Sketcher.Constraint("DistanceY", 0, 2, 0, 1, 1.896031))
pad7 = body.newObject("PartDesign::Pad", "Pad006")
pad7.Profile = sketch14
pad7.Length = 0.39
pad7.Reversed = True
doc.recompute()

linearpattern = body.newObject("PartDesign::LinearPattern", "LinearPattern")
linearpattern.Originals = [pad6, pad7]
linearpattern.Direction = (doc.getObject("X_Axis"), [""])
linearpattern.Mode = "offset"
linearpattern.Offset = 5
linearpattern.Occurrences = 2
body.Tip = linearpattern
doc.recompute()

fillet = body.newObject("PartDesign::Fillet", "Fillet")
fillet.Base = (linearpattern, edges_at(linearpattern, [
    (-2.5, 3.862, 3.039),
    (-2.5, 1.788, 0.167),
    (2.5, 3.862, 3.039),
    (2.5, 1.788, 0.167),
]))
fillet.Radius = 0.3
doc.recompute()

fillet2 = body.newObject("PartDesign::Fillet", "Fillet001")
fillet2.Base = (fillet, edges_at(fillet, [
    (-2.5, 3.71, 3.512),
    (-2.5, 1.33, 0.217),
    (2.5, 1.33, 0.217),
    (2.5, 3.71, 3.512),
]))
fillet2.Radius = 0.7

doc.recompute()
